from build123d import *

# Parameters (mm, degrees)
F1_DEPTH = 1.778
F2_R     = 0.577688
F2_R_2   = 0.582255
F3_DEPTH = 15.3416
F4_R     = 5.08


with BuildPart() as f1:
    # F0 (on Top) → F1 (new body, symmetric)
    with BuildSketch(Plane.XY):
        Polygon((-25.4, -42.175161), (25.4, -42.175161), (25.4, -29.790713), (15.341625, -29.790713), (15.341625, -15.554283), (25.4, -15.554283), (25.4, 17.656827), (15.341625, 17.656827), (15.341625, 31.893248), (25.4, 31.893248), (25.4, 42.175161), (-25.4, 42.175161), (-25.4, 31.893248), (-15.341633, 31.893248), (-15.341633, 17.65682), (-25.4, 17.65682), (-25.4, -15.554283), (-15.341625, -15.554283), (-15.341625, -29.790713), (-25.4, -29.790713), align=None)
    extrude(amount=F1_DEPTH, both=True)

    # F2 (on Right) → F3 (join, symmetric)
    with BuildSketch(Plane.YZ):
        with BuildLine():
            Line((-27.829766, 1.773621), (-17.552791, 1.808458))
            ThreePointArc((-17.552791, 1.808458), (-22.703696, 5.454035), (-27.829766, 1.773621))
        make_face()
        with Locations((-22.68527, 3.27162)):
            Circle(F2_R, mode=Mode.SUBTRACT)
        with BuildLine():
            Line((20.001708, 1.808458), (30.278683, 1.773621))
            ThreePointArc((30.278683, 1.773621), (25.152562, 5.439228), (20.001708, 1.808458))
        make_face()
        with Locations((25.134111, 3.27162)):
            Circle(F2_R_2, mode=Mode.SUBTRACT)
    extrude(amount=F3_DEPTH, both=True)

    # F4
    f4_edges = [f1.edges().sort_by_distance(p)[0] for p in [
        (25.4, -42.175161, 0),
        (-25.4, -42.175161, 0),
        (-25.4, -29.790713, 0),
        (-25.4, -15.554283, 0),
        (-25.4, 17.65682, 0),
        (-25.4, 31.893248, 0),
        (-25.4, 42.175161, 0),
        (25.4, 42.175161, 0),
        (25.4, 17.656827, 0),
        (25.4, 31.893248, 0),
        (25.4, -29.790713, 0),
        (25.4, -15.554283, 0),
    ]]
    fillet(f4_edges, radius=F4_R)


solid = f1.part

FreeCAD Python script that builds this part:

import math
import FreeCAD as App
import Part
import Sketcher
from FreeCAD import Vector
Q = App.Units.Quantity


def edges_at(feature, points):
    """Names of the edges that pass closest to the given points."""
    edges = feature.Shape.Edges
    near = lambda p: min(range(len(edges)), key=lambda i: edges[i].distToShape(Part.Vertex(*p))[0])
    return sorted({f"Edge{near(p) + 1}" for p in points})

doc = App.newDocument("Part")
params = doc.addObject("Spreadsheet::Sheet", "Params")
for row, (alias, value) in enumerate([
    ("sketch1_width", "2 in"),
    ("pad1_length", "0.14 in"),
    ("pad2_length", "1.208 in"),
    ("fillet_radius", "0.2 in"),
], start=1):
    params.set(f"A{row}", alias)
    params.set(f"B{row}", "=" + value)
    params.setAlias(f"B{row}", alias)

body = doc.addObject("PartDesign::Body", "Body")

# Sketch on XY plane
sketch1 = body.newObject("Sketcher::SketchObject", "Sketch")
sketch1.AttachmentSupport = (doc.getObject("XY_Plane"), [""])
sketch1.MapMode = "FlatFace"
sketch1.addGeometry([
    Part.LineSegment(Vector(-25, -42, 0), Vector(25, -42, 0)),  # 0
    Part.LineSegment(Vector(25, -42, 0), Vector(25, -30, 0)),  # 1
    Part.LineSegment(Vector(25, -30, 0), Vector(15, -30, 0)),  # 2
    Part.LineSegment(Vector(15, -30, 0), Vector(15, -16, 0)),  # 3
    Part.LineSegment(Vector(15, -16, 0), Vector(25, -16, 0)),  # 4
    Part.LineSegment(Vector(25, -16, 0), Vector(25, 18, 0)),  # 5
    Part.LineSegment(Vector(25, 18, 0), Vector(15, 18, 0)),  # 6
    Part.LineSegment(Vector(15, 18, 0), Vector(15, 32, 0)),  # 7
    Part.LineSegment(Vector(15, 32, 0), Vector(25, 32, 0)),  # 8
    Part.LineSegment(Vector(25, 32, 0), Vector(25, 42, 0)),  # 9
    Part.LineSegment(Vector(25, 42, 0), Vector(-25, 42, 0)),  # 10
    Part.LineSegment(Vector(-25, 42, 0), Vector(-25, 32, 0)),  # 11
    Part.LineSegment(Vector(-25, 32, 0), Vector(-15, 32, 0)),  # 12
    Part.LineSegment(Vector(-15, 32, 0), Vector(-15, 18, 0)),  # 13
    Part.LineSegment(Vector(-15, 18, 0), Vector(-25, 18, 0)),  # 14
    Part.LineSegment(Vector(-25, 18, 0), Vector(-25, -16, 0)),  # 15
    Part.LineSegment(Vector(-25, -16, 0), Vector(-15, -16, 0)),  # 16
    Part.LineSegment(Vector(-15, -16, 0), Vector(-15, -30, 0)),  # 17
    Part.LineSegment(Vector(-15, -30, 0), Vector(-25, -30, 0)),  # 18
    Part.LineSegment(Vector(-25, -30, 0), Vector(-25, -42, 0)),  # 19
], False)
sketch1.addConstraint([
    Sketcher.Constraint("Coincident", 0, 2, 1, 1),
    Sketcher.Constraint("Coincident", 1, 2, 2, 1),
    Sketcher.Constraint("Coincident", 2, 2, 3, 1),
    Sketcher.Constraint("Coincident", 3, 2, 4, 1),
    Sketcher.Constraint("Coincident", 4, 2, 5, 1),
    Sketcher.Constraint("Coincident", 5, 2, 6, 1),
    Sketcher.Constraint("Coincident", 6, 2, 7, 1),
    Sketcher.Constraint("Coincident", 7, 2, 8, 1),
    Sketcher.Constraint("Coincident", 8, 2, 9, 1),
    Sketcher.Constraint("Coincident", 9, 2, 10, 1),
    Sketcher.Constraint("Coincident", 10, 2, 11, 1),
    Sketcher.Constraint("Coincident", 11, 2, 12, 1),
    Sketcher.Constraint("Coincident", 12, 2, 13, 1),
    Sketcher.Constraint("Coincident", 13, 2, 14, 1),
    Sketcher.Constraint("Coincident", 14, 2, 15, 1),
    Sketcher.Constraint("Coincident", 15, 2, 16, 1),
    Sketcher.Constraint("Coincident", 16, 2, 17, 1),
    Sketcher.Constraint("Coincident", 17, 2, 18, 1),
    Sketcher.Constraint("Coincident", 18, 2, 19, 1),
    Sketcher.Constraint("Coincident", 19, 2, 0, 1),
    Sketcher.Constraint("Horizontal", 0),
    Sketcher.Constraint("Vertical", 1),
    Sketcher.Constraint("Horizontal", 2),
    Sketcher.Constraint("Vertical", 3),
    Sketcher.Constraint("Horizontal", 4),
    Sketcher.Constraint("Vertical", 5),
    Sketcher.Constraint("Horizontal", 6),
    Sketcher.Constraint("Vertical", 7),
    Sketcher.Constraint("Horizontal", 8),
    Sketcher.Constraint("Vertical", 9),
    Sketcher.Constraint("Horizontal", 10),
    Sketcher.Constraint("Vertical", 11),
    Sketcher.Constraint("Horizontal", 12),
    Sketcher.Constraint("Vertical", 13),
    Sketcher.Constraint("Horizontal", 14),
    Sketcher.Constraint("Vertical", 15),
    Sketcher.Constraint("Horizontal", 16),
    Sketcher.Constraint("Vertical", 17),
    Sketcher.Constraint("Horizontal", 18),
    Sketcher.Constraint("Vertical", 19),
    Sketcher.Constraint("Symmetric", 0, 2, 10, 2, -1, 1),
    Sketcher.Constraint("Symmetric", 8, 2, 11, 2, -2),
    Sketcher.Constraint("Symmetric", 5, 2, 14, 2, -2),
    Sketcher.Constraint("Symmetric", 3, 2, 16, 2, -2),
    Sketcher.Constraint("Symmetric", 1, 2, 18, 2, -2),
    Sketcher.Constraint("Vertical", 1, 2, 4, 2),
    Sketcher.Constraint("Vertical", 3, 2, 6, 2),
    Sketcher.Constraint("DistanceX", 0, 1, 0, 2, Q("2 in")),
    Sketcher.Constraint("DistanceY", 1, 1, 1, 2, 12.384448),
    Sketcher.Constraint("DistanceY", 3, 1, 3, 2, 14.23643),
    Sketcher.Constraint("DistanceY", 5, 1, 5, 2, 33.21111),
    Sketcher.Constraint("DistanceY", 7, 1, 7, 2, 14.236421),
    Sketcher.Constraint("DistanceX", 2, 2, 2, 1, 10.058375),
    Sketcher.Constraint("DistanceX", 12, 1, 12, 2, 10.058367),
    Sketcher.Constraint("DistanceY", 9, 1, 9, 2, 10.281913),
])
sketch1.setExpression("Constraints[47]", "Params.sketch1_width")
pad1 = body.newObject("PartDesign::Pad", "Pad")
pad1.Profile = sketch1
pad1.setExpression("Length", "Params.pad1_length")
pad1.Midplane = True

# Sketch on YZ plane
sketch2 = body.newObject("Sketcher::SketchObject", "Sketch001")
sketch2.AttachmentSupport = (doc.getObject("YZ_Plane"), [""])
sketch2.MapMode = "FlatFace"
sketch2.addGeometry([
    Part.LineSegment(Vector(-27.829766, 1.773621, 0), Vector(-17.552791, 1.808458, 0)),  # 0
    Part.ArcOfCircle(Part.Circle(Vector(-22.68527, 0.018376, 0), Vector(0, 0, 1), 5.43569), math.radians(19.227514), math.radians(161.160928)),  # 1
    Part.Circle(Vector(-22.68527, 3.27162, 0), Vector(0, 0, 1), 0.577688),  # 2
    Part.LineSegment(Vector(20.001708, 1.808458, 0), Vector(30.278683, 1.773621, 0)),  # 3
    Part.ArcOfCircle(Part.Circle(Vector(25.134112, -0.003656, 0), Vector(0, 0, 1), 5.442915), math.radians(19.058316), math.radians(160.553242)),  # 4
    Part.Circle(Vector(25.134111, 3.27162, 0), Vector(0, 0, 1), 0.582255),  # 5
], False)
sketch2.addConstraint([
    Sketcher.Constraint("Coincident", 0, 1, 1, 2),
    Sketcher.Constraint("Coincident", 1, 1, 0, 2),
    Sketcher.Constraint("Coincident", 3, 1, 4, 2),
    Sketcher.Constraint("Coincident", 4, 1, 3, 2),
    Sketcher.Constraint("Diameter", 5, 1.16451),
    Sketcher.Constraint("Radius", 1, 5.43569),
    Sketcher.Constraint("Diameter", 2, 1.155376),
    Sketcher.Constraint("Radius", 4, 5.442915),
    Sketcher.Constraint("DistanceY", 0, 1, 2, 3, 1.497999),
    Sketcher.Constraint("DistanceY", 0, 1, 5, 3, 1.497999),
    Sketcher.Constraint("DistanceX", 1, 1, 3, 1, 37.554499),
    Sketcher.Constraint("DistanceY", 4, 1, 5, 3, 1.497999),
    Sketcher.Constraint("DistanceX", 1, 3, -1, 1, 22.68527),
    Sketcher.Constraint("DistanceX", 2, 3, -1, 1, 22.68527),
    Sketcher.Constraint("DistanceY", -1, 1, 2, 3, 3.27162),
    Sketcher.Constraint("DistanceX", -1, 1, 4, 3, 25.134112),
    Sketcher.Constraint("DistanceX", -1, 1, 5, 3, 25.134111),
    Sketcher.Constraint("DistanceX", 1, 1, -1, 1, 17.552791),
    Sketcher.Constraint("DistanceY", 4, 3, 1, 3, 0.022032),
    Sketcher.Constraint("DistanceX", 4, 3, 4, 1, 5.144571),
])
pad2 = body.newObject("PartDesign::Pad", "Pad001")
pad2.Profile = sketch2
pad2.setExpression("Length", "Params.pad2_length")
pad2.Midplane = True
doc.recompute()

fillet = body.newObject("PartDesign::Fillet", "Fillet")
fillet.Base = (pad2, edges_at(pad2, [
    (25.4, -42.175, 0),
    (-25.4, -42.175, 0),
    (-25.4, -29.791, 0),
    (-25.4, -15.554, 0),
    (-25.4, 17.657, 0),
    (-25.4, 31.893, 0),
    (-25.4, 42.175, 0),
    (25.4, 42.175, 0),
    (25.4, 17.657, 0),
    (25.4, 31.893, 0),
    (25.4, -29.791, 0),
    (25.4, -15.554, 0),
]))
fillet.setExpression("Radius", "Params.fillet_radius")

doc.recompute()
